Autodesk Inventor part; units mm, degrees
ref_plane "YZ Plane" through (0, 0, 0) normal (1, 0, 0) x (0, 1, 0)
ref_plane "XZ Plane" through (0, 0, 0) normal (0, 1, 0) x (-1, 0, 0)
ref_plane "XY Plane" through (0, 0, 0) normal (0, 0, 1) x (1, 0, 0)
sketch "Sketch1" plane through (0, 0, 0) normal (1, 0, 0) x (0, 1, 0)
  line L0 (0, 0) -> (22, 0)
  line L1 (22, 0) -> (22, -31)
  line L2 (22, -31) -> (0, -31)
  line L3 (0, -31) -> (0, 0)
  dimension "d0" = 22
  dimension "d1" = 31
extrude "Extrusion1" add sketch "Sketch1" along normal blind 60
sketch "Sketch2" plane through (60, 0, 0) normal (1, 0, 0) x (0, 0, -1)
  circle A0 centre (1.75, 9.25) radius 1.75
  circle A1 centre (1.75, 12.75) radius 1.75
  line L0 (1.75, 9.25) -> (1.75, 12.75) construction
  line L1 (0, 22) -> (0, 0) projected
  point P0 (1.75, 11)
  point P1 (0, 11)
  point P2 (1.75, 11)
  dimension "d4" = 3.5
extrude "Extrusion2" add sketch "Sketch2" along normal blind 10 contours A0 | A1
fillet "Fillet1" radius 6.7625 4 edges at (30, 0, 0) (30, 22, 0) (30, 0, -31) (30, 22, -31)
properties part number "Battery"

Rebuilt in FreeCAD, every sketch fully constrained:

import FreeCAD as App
import Part
import Sketcher


def edges_at(feature, points):
    """Names of the edges that pass closest to the given points."""
    edges = feature.Shape.Edges
    near = lambda p: min(range(len(edges)), key=lambda i: edges[i].distToShape(Part.Vertex(*p))[0])
    return sorted({f"Edge{near(p) + 1}" for p in points})


def add_polygon(sketch, points):
    """Adds a closed chain of lines whose ends are joined by coincident constraints."""
    first, n = sketch.GeometryCount, len(points)
    for a, b in zip(points, points[1:] + points[:1]):
        sketch.addGeometry(Part.LineSegment(App.Vector(*a, 0), App.Vector(*b, 0)), False)
    for i in range(n):
        sketch.addConstraint(Sketcher.Constraint("Coincident", first + i, 2, first + (i + 1) % n, 1))

doc = App.newDocument("Part")
body = doc.addObject("PartDesign::Body", "Body")

# Sketch on YZ plane
sketch1 = body.newObject("Sketcher::SketchObject", "Sketch")
sketch1.AttachmentSupport = (doc.getObject("YZ_Plane"), [""])
sketch1.MapMode = "FlatFace"
add_polygon(sketch1, [(22, 0), (0, 0), (0, -31), (22, -31)])  # lines 0-3
sketch1.addConstraint(Sketcher.Constraint("Horizontal", 0))
sketch1.addConstraint(Sketcher.Constraint("Vertical", 1))
sketch1.addConstraint(Sketcher.Constraint("Horizontal", 2))
sketch1.addConstraint(Sketcher.Constraint("Vertical", 3))
sketch1.addConstraint(Sketcher.Constraint("Coincident", 0, 2, -1, 1))
sketch1.addConstraint(Sketcher.Constraint("DistanceX", 0, 2, 0, 1, 22.0))
sketch1.addConstraint(Sketcher.Constraint("DistanceY", 1, 2, 1, 1, 31.0))
pad1 = body.newObject("PartDesign::Pad", "Pad")
pad1.Profile = sketch1
pad1.Length = 60

# Sketch on YZ plane
sketch2 = body.newObject("Sketcher::SketchObject", "Sketch001")
sketch2.AttachmentSupport = (doc.getObject("YZ_Plane"), [""])
sketch2.MapMode = "FlatFace"
sketch2.AttachmentOffset = App.Placement(App.Vector(0, 0, 60), App.Rotation())
sketch2.addGeometry(Part.Circle(App.Vector(9.2, -1.8, 0), App.Vector(0, 0, 1), 1.8), False)
sketch2.addGeometry(Part.Circle(App.Vector(12.8, -1.8, 0), App.Vector(0, 0, 1), 1.8), False)
sketch2.addConstraint(Sketcher.Constraint("Equal", 0, 1))
sketch2.addConstraint(Sketcher.Constraint("Horizontal", 0, 3, 1, 3))
sketch2.addConstraint(Sketcher.Constraint("Diameter", 0, 3.5))
sketch2.addConstraint(Sketcher.Constraint("DistanceX", 0, 3, 1, 3, 3.5))
sketch2.addConstraint(Sketcher.Constraint("DistanceX", -1, 1, 0, 3, 9.25))
sketch2.addConstraint(Sketcher.Constraint("DistanceY", 0, 3, -1, 1, 1.75))
pad2 = body.newObject("PartDesign::Pad", "Pad001")
pad2.Profile = sketch2
pad2.Length = 10
doc.recompute()

fillet = body.newObject("PartDesign::Fillet", "Fillet")
fillet.Base = (pad2, edges_at(pad2, [
    (30, 0, 0),
    (30, 22, 0),
    (30, 0, -31),
    (30, 22, -31),
]))
fillet.Radius = 6.7625

doc.recompute()
